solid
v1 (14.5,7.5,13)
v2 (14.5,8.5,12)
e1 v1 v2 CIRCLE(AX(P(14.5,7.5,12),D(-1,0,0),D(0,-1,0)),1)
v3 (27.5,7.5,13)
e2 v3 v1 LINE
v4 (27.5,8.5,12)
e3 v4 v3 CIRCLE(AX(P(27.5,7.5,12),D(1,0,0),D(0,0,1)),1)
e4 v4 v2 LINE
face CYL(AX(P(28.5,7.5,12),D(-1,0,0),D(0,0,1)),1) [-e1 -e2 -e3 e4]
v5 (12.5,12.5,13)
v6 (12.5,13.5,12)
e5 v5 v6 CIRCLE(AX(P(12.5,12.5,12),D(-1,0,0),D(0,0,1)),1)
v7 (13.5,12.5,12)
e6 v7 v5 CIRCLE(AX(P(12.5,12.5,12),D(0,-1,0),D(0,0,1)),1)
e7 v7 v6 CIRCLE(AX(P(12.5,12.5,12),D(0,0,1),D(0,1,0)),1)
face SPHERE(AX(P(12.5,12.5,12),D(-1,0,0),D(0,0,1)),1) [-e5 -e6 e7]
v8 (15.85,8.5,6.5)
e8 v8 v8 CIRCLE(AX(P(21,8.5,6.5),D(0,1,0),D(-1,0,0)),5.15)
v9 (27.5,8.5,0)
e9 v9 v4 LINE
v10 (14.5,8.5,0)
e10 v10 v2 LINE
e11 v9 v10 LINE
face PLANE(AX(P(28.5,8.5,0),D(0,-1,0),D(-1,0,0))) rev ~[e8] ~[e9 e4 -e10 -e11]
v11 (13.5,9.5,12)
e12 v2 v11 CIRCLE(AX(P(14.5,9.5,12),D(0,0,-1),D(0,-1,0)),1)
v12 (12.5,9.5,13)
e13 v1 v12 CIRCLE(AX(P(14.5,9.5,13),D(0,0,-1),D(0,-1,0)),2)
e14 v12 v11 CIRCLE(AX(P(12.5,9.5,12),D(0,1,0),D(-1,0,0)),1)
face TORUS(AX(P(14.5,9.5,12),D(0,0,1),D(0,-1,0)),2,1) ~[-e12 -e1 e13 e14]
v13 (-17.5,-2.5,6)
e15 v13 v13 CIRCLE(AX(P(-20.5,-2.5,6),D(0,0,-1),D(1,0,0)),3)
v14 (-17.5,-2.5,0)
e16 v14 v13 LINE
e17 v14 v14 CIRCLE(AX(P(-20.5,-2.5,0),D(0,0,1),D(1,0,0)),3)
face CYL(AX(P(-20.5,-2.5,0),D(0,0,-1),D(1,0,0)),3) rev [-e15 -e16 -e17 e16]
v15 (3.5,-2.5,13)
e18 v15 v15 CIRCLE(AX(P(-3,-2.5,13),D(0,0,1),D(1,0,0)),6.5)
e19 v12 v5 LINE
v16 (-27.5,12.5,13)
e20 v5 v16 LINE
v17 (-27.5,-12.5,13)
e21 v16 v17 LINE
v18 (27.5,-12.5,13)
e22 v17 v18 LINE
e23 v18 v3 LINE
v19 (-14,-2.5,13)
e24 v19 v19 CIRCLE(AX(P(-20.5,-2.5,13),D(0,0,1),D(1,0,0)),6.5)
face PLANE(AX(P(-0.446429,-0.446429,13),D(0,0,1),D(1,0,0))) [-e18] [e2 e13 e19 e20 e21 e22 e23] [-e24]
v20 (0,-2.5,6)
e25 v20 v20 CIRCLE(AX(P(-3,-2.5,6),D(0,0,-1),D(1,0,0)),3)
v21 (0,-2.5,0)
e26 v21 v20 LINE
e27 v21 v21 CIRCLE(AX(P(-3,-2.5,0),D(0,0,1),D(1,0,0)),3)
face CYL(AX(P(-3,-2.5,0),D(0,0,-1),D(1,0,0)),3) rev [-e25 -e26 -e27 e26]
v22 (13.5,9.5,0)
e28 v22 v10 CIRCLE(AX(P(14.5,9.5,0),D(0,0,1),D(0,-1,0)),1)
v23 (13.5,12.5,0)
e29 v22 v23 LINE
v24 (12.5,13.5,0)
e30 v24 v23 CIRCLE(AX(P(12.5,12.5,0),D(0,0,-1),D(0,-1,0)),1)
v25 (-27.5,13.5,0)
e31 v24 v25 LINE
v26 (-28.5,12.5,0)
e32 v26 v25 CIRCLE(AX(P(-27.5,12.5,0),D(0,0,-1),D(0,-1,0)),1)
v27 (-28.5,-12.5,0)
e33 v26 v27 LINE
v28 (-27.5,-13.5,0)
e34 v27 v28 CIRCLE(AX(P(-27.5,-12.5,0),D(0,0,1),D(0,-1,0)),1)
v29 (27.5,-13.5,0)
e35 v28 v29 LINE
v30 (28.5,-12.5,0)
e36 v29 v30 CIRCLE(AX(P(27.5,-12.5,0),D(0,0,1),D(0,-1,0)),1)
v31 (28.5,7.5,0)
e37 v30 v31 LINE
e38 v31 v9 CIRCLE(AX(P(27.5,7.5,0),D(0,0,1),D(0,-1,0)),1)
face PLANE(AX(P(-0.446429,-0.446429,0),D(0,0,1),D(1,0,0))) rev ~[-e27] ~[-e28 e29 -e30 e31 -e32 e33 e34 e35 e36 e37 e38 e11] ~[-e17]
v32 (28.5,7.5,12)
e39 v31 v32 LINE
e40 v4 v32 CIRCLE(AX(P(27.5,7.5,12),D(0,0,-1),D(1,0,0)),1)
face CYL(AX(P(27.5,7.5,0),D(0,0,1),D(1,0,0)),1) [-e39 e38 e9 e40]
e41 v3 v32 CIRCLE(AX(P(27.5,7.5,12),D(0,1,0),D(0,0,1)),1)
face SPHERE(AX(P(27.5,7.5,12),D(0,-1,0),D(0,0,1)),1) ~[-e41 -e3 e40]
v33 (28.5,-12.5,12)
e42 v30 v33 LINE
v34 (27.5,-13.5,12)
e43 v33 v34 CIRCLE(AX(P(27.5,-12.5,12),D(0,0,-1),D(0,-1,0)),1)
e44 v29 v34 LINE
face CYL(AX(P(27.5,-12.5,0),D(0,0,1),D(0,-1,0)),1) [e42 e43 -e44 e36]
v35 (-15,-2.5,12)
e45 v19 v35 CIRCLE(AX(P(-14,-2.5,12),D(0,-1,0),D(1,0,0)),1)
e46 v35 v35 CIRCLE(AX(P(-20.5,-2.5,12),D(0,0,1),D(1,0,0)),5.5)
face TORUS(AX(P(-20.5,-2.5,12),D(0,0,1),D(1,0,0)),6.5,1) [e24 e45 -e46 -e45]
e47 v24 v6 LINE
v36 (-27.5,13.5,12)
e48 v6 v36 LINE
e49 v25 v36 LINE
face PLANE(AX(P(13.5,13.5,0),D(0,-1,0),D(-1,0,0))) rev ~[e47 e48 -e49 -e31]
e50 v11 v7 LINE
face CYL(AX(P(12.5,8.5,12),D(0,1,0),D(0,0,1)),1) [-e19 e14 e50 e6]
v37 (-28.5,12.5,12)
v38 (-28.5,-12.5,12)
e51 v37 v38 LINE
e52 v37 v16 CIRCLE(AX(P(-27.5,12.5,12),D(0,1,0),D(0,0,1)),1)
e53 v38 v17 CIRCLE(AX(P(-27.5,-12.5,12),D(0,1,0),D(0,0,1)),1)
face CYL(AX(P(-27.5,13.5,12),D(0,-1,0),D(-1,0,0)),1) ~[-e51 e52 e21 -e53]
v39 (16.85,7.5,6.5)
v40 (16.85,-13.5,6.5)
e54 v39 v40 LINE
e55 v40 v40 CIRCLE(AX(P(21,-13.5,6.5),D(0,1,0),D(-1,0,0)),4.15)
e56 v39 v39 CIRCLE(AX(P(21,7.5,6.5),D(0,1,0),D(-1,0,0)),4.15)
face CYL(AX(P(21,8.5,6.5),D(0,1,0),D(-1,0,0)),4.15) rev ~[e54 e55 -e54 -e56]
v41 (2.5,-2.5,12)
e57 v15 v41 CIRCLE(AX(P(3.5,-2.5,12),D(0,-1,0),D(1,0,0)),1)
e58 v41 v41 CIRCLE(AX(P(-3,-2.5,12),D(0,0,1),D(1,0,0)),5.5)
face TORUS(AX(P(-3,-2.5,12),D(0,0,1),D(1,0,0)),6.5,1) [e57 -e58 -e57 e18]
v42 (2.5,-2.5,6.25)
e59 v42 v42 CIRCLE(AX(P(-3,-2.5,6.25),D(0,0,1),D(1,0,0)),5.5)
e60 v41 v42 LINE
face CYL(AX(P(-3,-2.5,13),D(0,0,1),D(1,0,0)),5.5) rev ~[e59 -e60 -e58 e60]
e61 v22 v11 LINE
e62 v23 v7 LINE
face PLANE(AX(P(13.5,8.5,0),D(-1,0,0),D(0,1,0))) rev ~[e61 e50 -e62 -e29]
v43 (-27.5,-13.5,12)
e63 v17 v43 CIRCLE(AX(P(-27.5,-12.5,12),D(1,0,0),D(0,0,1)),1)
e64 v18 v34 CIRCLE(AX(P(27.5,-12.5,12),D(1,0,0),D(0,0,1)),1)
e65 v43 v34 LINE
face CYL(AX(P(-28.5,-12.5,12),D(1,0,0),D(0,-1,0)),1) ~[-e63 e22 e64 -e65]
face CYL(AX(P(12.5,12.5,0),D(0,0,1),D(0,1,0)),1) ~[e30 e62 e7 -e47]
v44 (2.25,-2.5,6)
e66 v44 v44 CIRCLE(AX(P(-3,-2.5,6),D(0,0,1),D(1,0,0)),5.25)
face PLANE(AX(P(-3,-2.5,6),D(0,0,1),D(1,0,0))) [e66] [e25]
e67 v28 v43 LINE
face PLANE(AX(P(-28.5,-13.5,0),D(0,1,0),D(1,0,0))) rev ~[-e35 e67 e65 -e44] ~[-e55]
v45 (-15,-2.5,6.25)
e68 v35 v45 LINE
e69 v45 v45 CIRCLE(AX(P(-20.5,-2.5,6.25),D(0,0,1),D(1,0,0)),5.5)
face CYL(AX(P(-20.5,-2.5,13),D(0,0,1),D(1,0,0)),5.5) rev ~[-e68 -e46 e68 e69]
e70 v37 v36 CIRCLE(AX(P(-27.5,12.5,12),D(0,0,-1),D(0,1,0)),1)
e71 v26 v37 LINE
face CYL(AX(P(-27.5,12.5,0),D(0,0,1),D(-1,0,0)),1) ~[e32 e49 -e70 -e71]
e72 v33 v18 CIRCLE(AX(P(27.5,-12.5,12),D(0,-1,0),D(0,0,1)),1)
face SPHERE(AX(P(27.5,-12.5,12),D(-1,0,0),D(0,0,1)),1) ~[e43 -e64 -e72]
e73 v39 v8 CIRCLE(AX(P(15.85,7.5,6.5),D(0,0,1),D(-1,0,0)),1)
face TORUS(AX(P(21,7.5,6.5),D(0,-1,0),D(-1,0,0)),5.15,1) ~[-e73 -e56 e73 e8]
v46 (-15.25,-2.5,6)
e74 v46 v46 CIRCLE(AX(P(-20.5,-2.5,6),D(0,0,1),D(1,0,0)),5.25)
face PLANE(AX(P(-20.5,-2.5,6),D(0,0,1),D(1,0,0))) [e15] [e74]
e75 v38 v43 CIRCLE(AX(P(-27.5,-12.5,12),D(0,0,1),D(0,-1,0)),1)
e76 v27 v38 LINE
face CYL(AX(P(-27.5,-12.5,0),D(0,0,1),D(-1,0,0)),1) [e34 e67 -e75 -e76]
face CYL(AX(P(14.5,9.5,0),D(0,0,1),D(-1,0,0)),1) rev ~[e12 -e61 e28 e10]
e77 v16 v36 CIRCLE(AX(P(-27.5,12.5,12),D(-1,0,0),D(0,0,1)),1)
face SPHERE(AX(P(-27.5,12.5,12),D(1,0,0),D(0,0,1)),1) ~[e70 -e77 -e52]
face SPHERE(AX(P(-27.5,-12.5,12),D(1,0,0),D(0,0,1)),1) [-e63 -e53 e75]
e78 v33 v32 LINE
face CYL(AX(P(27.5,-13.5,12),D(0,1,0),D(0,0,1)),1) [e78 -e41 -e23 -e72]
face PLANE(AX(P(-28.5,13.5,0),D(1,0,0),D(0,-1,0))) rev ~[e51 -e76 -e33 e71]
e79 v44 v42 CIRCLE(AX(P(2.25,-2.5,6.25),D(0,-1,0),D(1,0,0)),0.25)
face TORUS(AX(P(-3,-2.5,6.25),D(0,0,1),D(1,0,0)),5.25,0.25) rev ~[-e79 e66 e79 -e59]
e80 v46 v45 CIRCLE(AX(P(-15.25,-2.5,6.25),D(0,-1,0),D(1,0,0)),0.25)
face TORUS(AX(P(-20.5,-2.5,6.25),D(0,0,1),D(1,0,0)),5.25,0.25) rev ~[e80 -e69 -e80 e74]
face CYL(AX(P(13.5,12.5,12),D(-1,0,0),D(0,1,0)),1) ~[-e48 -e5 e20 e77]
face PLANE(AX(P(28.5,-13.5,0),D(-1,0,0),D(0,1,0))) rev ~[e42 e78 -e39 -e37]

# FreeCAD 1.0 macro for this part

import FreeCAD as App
import Part
import Sketcher

V = App.Vector


def edges_at(feature, points):
    """Names of the edges that pass closest to the given points."""
    edges = feature.Shape.Edges
    near = lambda p: min(range(len(edges)), key=lambda i: edges[i].distToShape(Part.Vertex(*p))[0])
    return sorted({f"Edge{near(p) + 1}" for p in points})


def add_polygon(sketch, points):
    """Adds a closed chain of lines whose ends are joined by coincident constraints."""
    first, n = sketch.GeometryCount, len(points)
    for a, b in zip(points, points[1:] + points[:1]):
        sketch.addGeometry(Part.LineSegment(App.Vector(*a, 0), App.Vector(*b, 0)), False)
    for i in range(n):
        sketch.addConstraint(Sketcher.Constraint("Coincident", first + i, 2, first + (i + 1) % n, 1))

doc = App.newDocument("Part")
params = doc.addObject("Spreadsheet::Sheet", "Params")
for row, (alias, value) in enumerate([
    ("sketch1_diameter", "6 mm"),
    ("sketch1_width", "57 mm"),
    ("sketch1_width2", "15 mm"),
    ("sketch1_height", "27 mm"),
    ("sketch1_height2", "22 mm"),
    ("pad1_length", "13 mm"),
    ("sketch2_diameter", "8.3 mm"),
    ("sketch3_diameter", "11 mm"),
    ("pocket2_length", "7 mm"),
    ("fillet_radius", "1 mm"),
    ("fillet2_radius", "0.25 mm"),
], start=1):
    params.set(f"A{row}", alias)
    params.set(f"B{row}", "=" + value)
    params.setAlias(f"B{row}", alias)

body = doc.addObject("PartDesign::Body", "Body")

# Sketch on XY plane
sketch1 = body.newObject("Sketcher::SketchObject", "Sketch")
sketch1.AttachmentSupport = (doc.getObject("XY_Plane"), [""])
sketch1.MapMode = "FlatFace"
add_polygon(sketch1, [(-28.5, 13.5), (-28.5, -13.5), (28.5, -13.5), (28.5, 8.5), (13.5, 8.5), (13.5, 13.5)])  # lines 0-5
sketch1.addGeometry(Part.Circle(V(-20.5, -2.5, 0), V(0, 0, 1), 3), False)  # 6
sketch1.addGeometry(Part.Circle(V(-3, -2.5, 0), V(0, 0, 1), 3), False)  # 7
sketch1.addConstraint([
    Sketcher.Constraint("Vertical", 0),
    Sketcher.Constraint("Horizontal", 1),
    Sketcher.Constraint("Vertical", 2),
    Sketcher.Constraint("Horizontal", 3),
    Sketcher.Constraint("Vertical", 4),
    Sketcher.Constraint("Horizontal", 5),
    Sketcher.Constraint("Equal", 6, 7),
    Sketcher.Constraint("Symmetric", 1, 2, 5, 2, -1, 1),
    Sketcher.Constraint("Horizontal", 6, 3, 7, 3),
    Sketcher.Constraint("Diameter", 6, 6.0),
    Sketcher.Constraint("DistanceX", 1, 1, 1, 2, 57.0),
    Sketcher.Constraint("DistanceX", 3, 2, 3, 1, 15.0),
    Sketcher.Constraint("DistanceY", 0, 2, 0, 1, 27.0),
    Sketcher.Constraint("DistanceY", 2, 1, 2, 2, 22.0),
    Sketcher.Constraint("DistanceX", 7, 3, -1, 1, 3.0),
    Sketcher.Constraint("DistanceX", 0, 2, 6, 3, 8.0),
    Sketcher.Constraint("DistanceY", 0, 2, 6, 3, 11.0),
])
sketch1.setExpression("Constraints[15]", "Params.sketch1_diameter")
sketch1.setExpression("Constraints[16]", "Params.sketch1_width")
sketch1.setExpression("Constraints[17]", "Params.sketch1_width2")
sketch1.setExpression("Constraints[18]", "Params.sketch1_height")
sketch1.setExpression("Constraints[19]", "Params.sketch1_height2")
pad1 = body.newObject("PartDesign::Pad", "Pad")
pad1.Profile = sketch1
pad1.setExpression("Length", "Params.pad1_length")

# Sketch on XZ plane
sketch2 = body.newObject("Sketcher::SketchObject", "Sketch001")
sketch2.AttachmentSupport = (doc.getObject("XZ_Plane"), [""])
sketch2.MapMode = "FlatFace"
sketch2.AttachmentOffset = App.Placement(V(0, 0, -8.5), App.Rotation())
sketch2.addGeometry(Part.Circle(V(21, 6.5, 0), V(0, 0, 1), 4.2), False)
sketch2.addConstraint([
    Sketcher.Constraint("Diameter", 0, 8.3),
    Sketcher.Constraint("DistanceX", -1, 1, 0, 3, 21.0),
    Sketcher.Constraint("DistanceY", -1, 1, 0, 3, 6.5),
])
sketch2.setExpression("Constraints[0]", "Params.sketch2_diameter")
pocket1 = body.newObject("PartDesign::Pocket", "Pocket")
pocket1.Profile = sketch2
pocket1.Type = "ThroughAll"
pocket1.Reversed = True

# Sketch on XY plane
sketch3 = body.newObject("Sketcher::SketchObject", "Sketch002")
sketch3.AttachmentSupport = (doc.getObject("XY_Plane"), [""])
sketch3.MapMode = "FlatFace"
sketch3.AttachmentOffset = App.Placement(V(0, 0, 13), App.Rotation())
sketch3.addGeometry([
    Part.Circle(V(-20, -2, 0), V(0, 0, 1), 6),
    Part.Circle(V(-3, -2, 0), V(0, 0, 1), 6),
], False)
sketch3.addConstraint([
    Sketcher.Constraint("Equal", 0, 1),
    Sketcher.Constraint("Horizontal", 0, 3, 1, 3),
    Sketcher.Constraint("Diameter", 0, 11.0),
    Sketcher.Constraint("DistanceX", 1, 3, -1, 1, 3.0),
    Sketcher.Constraint("DistanceX", 0, 3, -1, 1, 20.5),
    Sketcher.Constraint("DistanceY", 0, 3, -1, 1, 2.5),
])
sketch3.setExpression("Constraints[2]", "Params.sketch3_diameter")
pocket2 = body.newObject("PartDesign::Pocket", "Pocket001")
pocket2.Profile = sketch3
pocket2.setExpression("Length", "Params.pocket2_length")
doc.recompute()

fillet = body.newObject("PartDesign::Fillet", "Fillet")
fillet.Base = (pocket2, edges_at(pocket2, [
    (0, -13.5, 13),
    (28.5, -2.5, 13),
    (-7.5, 13.5, 13),
    (21, 8.5, 13),
    (13.5, 11, 13),
    (-28.5, 0, 13),
    (-28.5, -13.5, 6.5),
    (28.5, -13.5, 6.5),
    (28.5, 8.5, 6.5),
    (13.5, 8.5, 6.5),
    (13.5, 13.5, 6.5),
    (-28.5, 13.5, 6.5),
    (25.15, 8.5, 6.5),
    (-8.5, -2.5, 13),
    (-26, -2.5, 13),
]))
fillet.setExpression("Radius", "Params.fillet_radius")
doc.recompute()

fillet2 = body.newObject("PartDesign::Fillet", "Fillet001")
fillet2.Base = (fillet, edges_at(fillet, [(-8.5, -2.5, 6), (-26, -2.5, 6)]))
fillet2.setExpression("Radius", "Params.fillet2_radius")

doc.recompute()
